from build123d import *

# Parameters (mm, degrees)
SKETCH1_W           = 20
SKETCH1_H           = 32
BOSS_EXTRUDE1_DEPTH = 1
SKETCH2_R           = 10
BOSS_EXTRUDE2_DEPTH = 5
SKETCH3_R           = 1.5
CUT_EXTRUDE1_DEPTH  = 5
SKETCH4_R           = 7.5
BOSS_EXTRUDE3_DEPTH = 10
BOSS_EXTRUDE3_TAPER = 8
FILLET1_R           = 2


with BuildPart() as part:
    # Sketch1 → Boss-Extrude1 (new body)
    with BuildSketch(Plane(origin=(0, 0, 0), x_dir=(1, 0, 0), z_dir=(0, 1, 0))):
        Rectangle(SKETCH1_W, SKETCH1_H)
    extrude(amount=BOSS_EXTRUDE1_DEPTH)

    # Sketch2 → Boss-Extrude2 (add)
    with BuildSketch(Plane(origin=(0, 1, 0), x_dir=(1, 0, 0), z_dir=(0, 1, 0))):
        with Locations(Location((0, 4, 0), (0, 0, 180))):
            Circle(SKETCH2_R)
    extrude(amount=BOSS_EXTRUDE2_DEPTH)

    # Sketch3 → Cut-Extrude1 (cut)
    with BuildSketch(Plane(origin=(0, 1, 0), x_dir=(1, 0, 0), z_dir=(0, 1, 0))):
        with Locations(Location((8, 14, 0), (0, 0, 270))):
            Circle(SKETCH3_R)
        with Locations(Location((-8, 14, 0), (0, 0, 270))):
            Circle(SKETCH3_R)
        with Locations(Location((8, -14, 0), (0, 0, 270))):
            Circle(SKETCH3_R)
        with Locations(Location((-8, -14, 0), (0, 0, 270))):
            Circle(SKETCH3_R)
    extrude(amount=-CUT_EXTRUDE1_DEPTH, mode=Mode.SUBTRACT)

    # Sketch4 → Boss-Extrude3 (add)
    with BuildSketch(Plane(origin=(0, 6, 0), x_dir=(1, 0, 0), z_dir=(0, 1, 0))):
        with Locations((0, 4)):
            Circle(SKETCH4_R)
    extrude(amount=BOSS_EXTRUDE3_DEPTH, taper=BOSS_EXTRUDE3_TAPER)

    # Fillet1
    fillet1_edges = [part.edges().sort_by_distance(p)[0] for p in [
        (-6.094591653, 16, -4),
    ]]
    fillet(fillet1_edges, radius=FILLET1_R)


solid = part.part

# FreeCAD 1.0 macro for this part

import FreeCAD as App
import Part
import Sketcher

V = App.Vector


def edges_at(feature, points):
    """Names of the edges that pass closest to the given points."""
    edges = feature.Shape.Edges
    near = lambda p: min(range(len(edges)), key=lambda i: edges[i].distToShape(Part.Vertex(*p))[0])
    return sorted({f"Edge{near(p) + 1}" for p in points})


def add_polygon(sketch, points):
    """Adds a closed chain of lines whose ends are joined by coincident constraints."""
    first, n = sketch.GeometryCount, len(points)
    for a, b in zip(points, points[1:] + points[:1]):
        sketch.addGeometry(Part.LineSegment(App.Vector(*a, 0), App.Vector(*b, 0)), False)
    for i in range(n):
        sketch.addConstraint(Sketcher.Constraint("Coincident", first + i, 2, first + (i + 1) % n, 1))

doc = App.newDocument("Part")
body = doc.addObject("PartDesign::Body", "Body")

# Sketch on XZ plane
sketch1 = doc.addObject("Sketcher::SketchObject", "Sketch")
body.addObject(sketch1)
sketch1.AttachmentSupport = (doc.XZ_Plane, [""])
sketch1.MapMode = "FlatFace"
add_polygon(sketch1, [(-10, -16), (-10, 16), (10, 16), (10, -16)])  # lines 0-3
sketch1.addConstraint([
    Sketcher.Constraint("Vertical", 0),
    Sketcher.Constraint("Horizontal", 1),
    Sketcher.Constraint("Vertical", 2),
    Sketcher.Constraint("Horizontal", 3),
    Sketcher.Constraint("Symmetric", 0, 2, 2, 2, -1, 1),
    Sketcher.Constraint("DistanceX", 1, 1, 1, 2, 20.0),
    Sketcher.Constraint("DistanceY", 0, 1, 0, 2, 32.0),
])
pad1 = doc.addObject("PartDesign::Pad", "Pad")
body.addObject(pad1)
pad1.Profile = sketch1
pad1.Length = 1
pad1.Reversed = True

# Sketch on XZ plane
sketch2 = doc.addObject("Sketcher::SketchObject", "Sketch001")
body.addObject(sketch2)
sketch2.AttachmentSupport = (doc.XZ_Plane, [""])
sketch2.MapMode = "FlatFace"
sketch2.AttachmentOffset = App.Placement(V(0, 0, -1), App.Rotation())
sketch2.addGeometry(Part.Circle(V(0, -4, 0), V(0, 0, 1), 10), False)
sketch2.addConstraint([
    Sketcher.Constraint("PointOnObject", 0, 3, -2),
    Sketcher.Constraint("Diameter", 0, 20.0),
    Sketcher.Constraint("DistanceY", 0, 3, -1, 1, 4.0),
])
pad2 = doc.addObject("PartDesign::Pad", "Pad001")
body.addObject(pad2)
pad2.Profile = sketch2
pad2.Length = 5
pad2.Reversed = True

# Sketch on XZ plane
sketch3 = doc.addObject("Sketcher::SketchObject", "Sketch002")
body.addObject(sketch3)
sketch3.AttachmentSupport = (doc.XZ_Plane, [""])
sketch3.MapMode = "FlatFace"
sketch3.AttachmentOffset = App.Placement(V(0, 0, -1), App.Rotation())
sketch3.addGeometry([
    Part.Circle(V(8, -14, 0), V(0, 0, 1), 1.5),
    Part.Circle(V(-8, -14, 0), V(0, 0, 1), 1.5),
    Part.Circle(V(8, 14, 0), V(0, 0, 1), 1.5),
    Part.Circle(V(-8, 14, 0), V(0, 0, 1), 1.5),
], False)
sketch3.addConstraint([
    Sketcher.Constraint("Equal", 0, 1),
    Sketcher.Constraint("Equal", 1, 2),
    Sketcher.Constraint("Equal", 2, 3),
    Sketcher.Constraint("Symmetric", 1, 3, 2, 3, -1, 1),
    Sketcher.Constraint("Symmetric", 0, 3, 3, 3, -1, 1),
    Sketcher.Constraint("Symmetric", 0, 3, 1, 3, -2),
    Sketcher.Constraint("Diameter", 0, 3.0),
    Sketcher.Constraint("DistanceX", -1, 1, 0, 3, 8.0),
    Sketcher.Constraint("DistanceY", 0, 3, -1, 1, 14.0),
])
pocket1 = doc.addObject("PartDesign::Pocket", "Pocket")
body.addObject(pocket1)
pocket1.Profile = sketch3
pocket1.Length = 5
pocket1.Reversed = True

# Sketch on XZ plane
sketch4 = doc.addObject("Sketcher::SketchObject", "Sketch003")
body.addObject(sketch4)
sketch4.AttachmentSupport = (doc.XZ_Plane, [""])
sketch4.MapMode = "FlatFace"
sketch4.AttachmentOffset = App.Placement(V(0, 0, -6), App.Rotation())
sketch4.addGeometry(Part.Circle(V(0, -4, 0), V(0, 0, 1), 8), False)
sketch4.addConstraint([
    Sketcher.Constraint("PointOnObject", 0, 3, -2),
    Sketcher.Constraint("Diameter", 0, 15.0),
    Sketcher.Constraint("DistanceY", 0, 3, -1, 1, 4.0),
])
pad3 = doc.addObject("PartDesign::Pad", "Pad002")
body.addObject(pad3)
pad3.Profile = sketch4
pad3.Length = 10
pad3.Reversed = True
pad3.TaperAngle = -8
doc.recompute()

fillet = doc.addObject("PartDesign::Fillet", "Fillet")
body.addObject(fillet)
fillet.Base = (pad3, edges_at(pad3, [(-6.095, 16, -4)]))
fillet.Radius = 2

doc.recompute()
